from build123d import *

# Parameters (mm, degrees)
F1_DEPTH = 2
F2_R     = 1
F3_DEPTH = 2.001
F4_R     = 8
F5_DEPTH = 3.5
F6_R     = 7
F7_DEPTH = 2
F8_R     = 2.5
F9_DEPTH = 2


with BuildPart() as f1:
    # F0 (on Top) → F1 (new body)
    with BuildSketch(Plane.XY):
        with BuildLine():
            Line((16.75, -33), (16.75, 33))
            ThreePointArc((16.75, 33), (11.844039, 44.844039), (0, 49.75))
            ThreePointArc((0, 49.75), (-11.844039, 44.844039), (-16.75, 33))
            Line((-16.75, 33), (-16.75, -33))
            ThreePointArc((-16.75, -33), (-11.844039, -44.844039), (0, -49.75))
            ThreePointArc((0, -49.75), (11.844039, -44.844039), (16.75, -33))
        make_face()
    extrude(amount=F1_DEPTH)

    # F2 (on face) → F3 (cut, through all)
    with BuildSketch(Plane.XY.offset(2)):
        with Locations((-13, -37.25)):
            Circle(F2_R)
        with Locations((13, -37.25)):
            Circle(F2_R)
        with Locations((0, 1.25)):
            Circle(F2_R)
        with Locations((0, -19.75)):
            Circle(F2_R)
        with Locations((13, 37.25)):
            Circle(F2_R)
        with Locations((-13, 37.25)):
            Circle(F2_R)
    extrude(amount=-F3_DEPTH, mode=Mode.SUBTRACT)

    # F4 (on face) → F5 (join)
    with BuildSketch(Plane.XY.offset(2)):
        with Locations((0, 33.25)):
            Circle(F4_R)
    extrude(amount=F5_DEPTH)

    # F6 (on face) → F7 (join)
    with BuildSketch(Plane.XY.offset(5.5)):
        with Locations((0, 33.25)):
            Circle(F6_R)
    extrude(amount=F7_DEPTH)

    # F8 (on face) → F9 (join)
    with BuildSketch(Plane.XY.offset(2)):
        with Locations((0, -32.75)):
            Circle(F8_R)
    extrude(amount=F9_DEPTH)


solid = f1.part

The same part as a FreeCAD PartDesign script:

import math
import FreeCAD as App
import Part
import Sketcher
Q = App.Units.Quantity

doc = App.newDocument("Part")
body = doc.addObject("PartDesign::Body", "Body")

# Sketch on XY plane
sketch1 = body.newObject("Sketcher::SketchObject", "Sketch")
sketch1.AttachmentSupport = (doc.getObject("XY_Plane"), [""])
sketch1.MapMode = "FlatFace"
sketch1.addGeometry([
    Part.LineSegment(App.Vector(17, -33, 0), App.Vector(17, 33, 0)),  # 0
    Part.ArcOfCircle(Part.Circle(App.Vector(0, 33, 0), App.Vector(0, 0, 1), 17), math.radians(0), math.radians(90)),  # 1
    Part.ArcOfCircle(Part.Circle(App.Vector(0, 33, 0), App.Vector(0, 0, 1), 17), math.radians(90), math.radians(180)),  # 2
    Part.LineSegment(App.Vector(-17, 33, 0), App.Vector(-17, -33, 0)),  # 3
    Part.ArcOfCircle(Part.Circle(App.Vector(0, -33, 0), App.Vector(0, 0, 1), 17), math.radians(180), math.radians(270)),  # 4
    Part.ArcOfCircle(Part.Circle(App.Vector(0, -33, 0), App.Vector(0, 0, 1), 17), math.radians(-90), math.radians(0)),  # 5
], False)
sketch1.addConstraint([
    Sketcher.Constraint("Tangent", 0, 2, 1, 1),
    Sketcher.Constraint("Tangent", 1, 2, 2, 1),
    Sketcher.Constraint("Tangent", 2, 2, 3, 1),
    Sketcher.Constraint("Tangent", 3, 2, 4, 1),
    Sketcher.Constraint("Tangent", 4, 2, 5, 1),
    Sketcher.Constraint("Tangent", 5, 2, 0, 1),
    Sketcher.Constraint("Vertical", 0),
    Sketcher.Constraint("Vertical", 3),
    Sketcher.Constraint("Equal", 1, 2),
    Sketcher.Constraint("Equal", 2, 4),
    Sketcher.Constraint("Symmetric", 1, 3, 4, 3, -1, 1),
    Sketcher.Constraint("PointOnObject", 1, 2, -2),
    Sketcher.Constraint("PointOnObject", 4, 2, -2),
    Sketcher.Constraint("DistanceY", 0, 1, 0, 2, Q("66 mm")),
    Sketcher.Constraint("Radius", 1, Q("16.749999 mm")),
])
pad1 = body.newObject("PartDesign::Pad", "Pad")
pad1.Profile = sketch1
pad1.Length = 2

# Sketch on XY plane
sketch2 = body.newObject("Sketcher::SketchObject", "Sketch001")
sketch2.AttachmentSupport = (doc.getObject("XY_Plane"), [""])
sketch2.MapMode = "FlatFace"
sketch2.AttachmentOffset = App.Placement(App.Vector(0, 0, 2), App.Rotation())
sketch2.addGeometry([
    Part.Circle(App.Vector(-13, -37.2, 0), App.Vector(0, 0, 1), 1),  # 0
    Part.Circle(App.Vector(13, -37.2, 0), App.Vector(0, 0, 1), 1),  # 1
    Part.Circle(App.Vector(0, 1.2, 0), App.Vector(0, 0, 1), 1),  # 2
    Part.Circle(App.Vector(0, -19.8, 0), App.Vector(0, 0, 1), 1),  # 3
    Part.Circle(App.Vector(13, 37.2, 0), App.Vector(0, 0, 1), 1),  # 4
    Part.Circle(App.Vector(-13, 37.2, 0), App.Vector(0, 0, 1), 1),  # 5
], False)
sketch2.addConstraint([
    Sketcher.Constraint("Equal", 0, 1),
    Sketcher.Constraint("Equal", 1, 2),
    Sketcher.Constraint("Equal", 2, 3),
    Sketcher.Constraint("Equal", 3, 4),
    Sketcher.Constraint("Equal", 4, 5),
    Sketcher.Constraint("Symmetric", 0, 3, 4, 3, -1, 1),
    Sketcher.Constraint("Symmetric", 1, 3, 5, 3, -1, 1),
    Sketcher.Constraint("Symmetric", 0, 3, 1, 3, -2),
    Sketcher.Constraint("PointOnObject", 2, 3, -2),
    Sketcher.Constraint("PointOnObject", 3, 3, -2),
    Sketcher.Constraint("Diameter", 0, Q("2 mm")),
    Sketcher.Constraint("DistanceX", 0, 3, -1, 1, Q("13 mm")),
    Sketcher.Constraint("DistanceY", 3, 3, 2, 3, Q("21 mm")),
    Sketcher.Constraint("DistanceY", 2, 3, 4, 3, Q("36 mm")),
    Sketcher.Constraint("DistanceY", 0, 3, 2, 3, Q("38.5 mm")),
])
pocket1 = body.newObject("PartDesign::Pocket", "Pocket")
pocket1.Profile = sketch2
pocket1.Type = "ThroughAll"

# Sketch on XY plane
sketch3 = body.newObject("Sketcher::SketchObject", "Sketch002")
sketch3.AttachmentSupport = (doc.getObject("XY_Plane"), [""])
sketch3.MapMode = "FlatFace"
sketch3.AttachmentOffset = App.Placement(App.Vector(0, 0, 2), App.Rotation())
sketch3.addGeometry(Part.Circle(App.Vector(0, 33, 0), App.Vector(0, 0, 1), 8), False)
sketch3.addConstraint([
    Sketcher.Constraint("PointOnObject", 0, 3, -2),
    Sketcher.Constraint("Diameter", 0, Q("16 mm")),
    Sketcher.Constraint("DistanceY", -1, 1, 0, 3, Q("33.25 mm")),
])
pad2 = body.newObject("PartDesign::Pad", "Pad001")
pad2.Profile = sketch3
pad2.Length = 3.5

# Sketch on XY plane
sketch4 = body.newObject("Sketcher::SketchObject", "Sketch003")
sketch4.AttachmentSupport = (doc.getObject("XY_Plane"), [""])
sketch4.MapMode = "FlatFace"
sketch4.AttachmentOffset = App.Placement(App.Vector(0, 0, 5.5), App.Rotation())
sketch4.addGeometry(Part.Circle(App.Vector(0, 33, 0), App.Vector(0, 0, 1), 7), False)
sketch4.addConstraint([
    Sketcher.Constraint("PointOnObject", 0, 3, -2),
    Sketcher.Constraint("Diameter", 0, Q("14 mm")),
    Sketcher.Constraint("DistanceY", -1, 1, 0, 3, Q("33.25 mm")),
])
pad3 = body.newObject("PartDesign::Pad", "Pad002")
pad3.Profile = sketch4
pad3.Length = 2

# Sketch on XY plane
sketch5 = body.newObject("Sketcher::SketchObject", "Sketch004")
sketch5.AttachmentSupport = (doc.getObject("XY_Plane"), [""])
sketch5.MapMode = "FlatFace"
sketch5.AttachmentOffset = App.Placement(App.Vector(0, 0, 2), App.Rotation())
sketch5.addGeometry(Part.Circle(App.Vector(0, -32.8, 0), App.Vector(0, 0, 1), 2.5), False)
sketch5.addConstraint([
    Sketcher.Constraint("PointOnObject", 0, 3, -2),
    Sketcher.Constraint("Diameter", 0, Q("5 mm")),
    Sketcher.Constraint("DistanceY", 0, 3, -1, 1, Q("32.75 mm")),
])
pad4 = body.newObject("PartDesign::Pad", "Pad003")
pad4.Profile = sketch5
pad4.Length = 2

doc.recompute()
